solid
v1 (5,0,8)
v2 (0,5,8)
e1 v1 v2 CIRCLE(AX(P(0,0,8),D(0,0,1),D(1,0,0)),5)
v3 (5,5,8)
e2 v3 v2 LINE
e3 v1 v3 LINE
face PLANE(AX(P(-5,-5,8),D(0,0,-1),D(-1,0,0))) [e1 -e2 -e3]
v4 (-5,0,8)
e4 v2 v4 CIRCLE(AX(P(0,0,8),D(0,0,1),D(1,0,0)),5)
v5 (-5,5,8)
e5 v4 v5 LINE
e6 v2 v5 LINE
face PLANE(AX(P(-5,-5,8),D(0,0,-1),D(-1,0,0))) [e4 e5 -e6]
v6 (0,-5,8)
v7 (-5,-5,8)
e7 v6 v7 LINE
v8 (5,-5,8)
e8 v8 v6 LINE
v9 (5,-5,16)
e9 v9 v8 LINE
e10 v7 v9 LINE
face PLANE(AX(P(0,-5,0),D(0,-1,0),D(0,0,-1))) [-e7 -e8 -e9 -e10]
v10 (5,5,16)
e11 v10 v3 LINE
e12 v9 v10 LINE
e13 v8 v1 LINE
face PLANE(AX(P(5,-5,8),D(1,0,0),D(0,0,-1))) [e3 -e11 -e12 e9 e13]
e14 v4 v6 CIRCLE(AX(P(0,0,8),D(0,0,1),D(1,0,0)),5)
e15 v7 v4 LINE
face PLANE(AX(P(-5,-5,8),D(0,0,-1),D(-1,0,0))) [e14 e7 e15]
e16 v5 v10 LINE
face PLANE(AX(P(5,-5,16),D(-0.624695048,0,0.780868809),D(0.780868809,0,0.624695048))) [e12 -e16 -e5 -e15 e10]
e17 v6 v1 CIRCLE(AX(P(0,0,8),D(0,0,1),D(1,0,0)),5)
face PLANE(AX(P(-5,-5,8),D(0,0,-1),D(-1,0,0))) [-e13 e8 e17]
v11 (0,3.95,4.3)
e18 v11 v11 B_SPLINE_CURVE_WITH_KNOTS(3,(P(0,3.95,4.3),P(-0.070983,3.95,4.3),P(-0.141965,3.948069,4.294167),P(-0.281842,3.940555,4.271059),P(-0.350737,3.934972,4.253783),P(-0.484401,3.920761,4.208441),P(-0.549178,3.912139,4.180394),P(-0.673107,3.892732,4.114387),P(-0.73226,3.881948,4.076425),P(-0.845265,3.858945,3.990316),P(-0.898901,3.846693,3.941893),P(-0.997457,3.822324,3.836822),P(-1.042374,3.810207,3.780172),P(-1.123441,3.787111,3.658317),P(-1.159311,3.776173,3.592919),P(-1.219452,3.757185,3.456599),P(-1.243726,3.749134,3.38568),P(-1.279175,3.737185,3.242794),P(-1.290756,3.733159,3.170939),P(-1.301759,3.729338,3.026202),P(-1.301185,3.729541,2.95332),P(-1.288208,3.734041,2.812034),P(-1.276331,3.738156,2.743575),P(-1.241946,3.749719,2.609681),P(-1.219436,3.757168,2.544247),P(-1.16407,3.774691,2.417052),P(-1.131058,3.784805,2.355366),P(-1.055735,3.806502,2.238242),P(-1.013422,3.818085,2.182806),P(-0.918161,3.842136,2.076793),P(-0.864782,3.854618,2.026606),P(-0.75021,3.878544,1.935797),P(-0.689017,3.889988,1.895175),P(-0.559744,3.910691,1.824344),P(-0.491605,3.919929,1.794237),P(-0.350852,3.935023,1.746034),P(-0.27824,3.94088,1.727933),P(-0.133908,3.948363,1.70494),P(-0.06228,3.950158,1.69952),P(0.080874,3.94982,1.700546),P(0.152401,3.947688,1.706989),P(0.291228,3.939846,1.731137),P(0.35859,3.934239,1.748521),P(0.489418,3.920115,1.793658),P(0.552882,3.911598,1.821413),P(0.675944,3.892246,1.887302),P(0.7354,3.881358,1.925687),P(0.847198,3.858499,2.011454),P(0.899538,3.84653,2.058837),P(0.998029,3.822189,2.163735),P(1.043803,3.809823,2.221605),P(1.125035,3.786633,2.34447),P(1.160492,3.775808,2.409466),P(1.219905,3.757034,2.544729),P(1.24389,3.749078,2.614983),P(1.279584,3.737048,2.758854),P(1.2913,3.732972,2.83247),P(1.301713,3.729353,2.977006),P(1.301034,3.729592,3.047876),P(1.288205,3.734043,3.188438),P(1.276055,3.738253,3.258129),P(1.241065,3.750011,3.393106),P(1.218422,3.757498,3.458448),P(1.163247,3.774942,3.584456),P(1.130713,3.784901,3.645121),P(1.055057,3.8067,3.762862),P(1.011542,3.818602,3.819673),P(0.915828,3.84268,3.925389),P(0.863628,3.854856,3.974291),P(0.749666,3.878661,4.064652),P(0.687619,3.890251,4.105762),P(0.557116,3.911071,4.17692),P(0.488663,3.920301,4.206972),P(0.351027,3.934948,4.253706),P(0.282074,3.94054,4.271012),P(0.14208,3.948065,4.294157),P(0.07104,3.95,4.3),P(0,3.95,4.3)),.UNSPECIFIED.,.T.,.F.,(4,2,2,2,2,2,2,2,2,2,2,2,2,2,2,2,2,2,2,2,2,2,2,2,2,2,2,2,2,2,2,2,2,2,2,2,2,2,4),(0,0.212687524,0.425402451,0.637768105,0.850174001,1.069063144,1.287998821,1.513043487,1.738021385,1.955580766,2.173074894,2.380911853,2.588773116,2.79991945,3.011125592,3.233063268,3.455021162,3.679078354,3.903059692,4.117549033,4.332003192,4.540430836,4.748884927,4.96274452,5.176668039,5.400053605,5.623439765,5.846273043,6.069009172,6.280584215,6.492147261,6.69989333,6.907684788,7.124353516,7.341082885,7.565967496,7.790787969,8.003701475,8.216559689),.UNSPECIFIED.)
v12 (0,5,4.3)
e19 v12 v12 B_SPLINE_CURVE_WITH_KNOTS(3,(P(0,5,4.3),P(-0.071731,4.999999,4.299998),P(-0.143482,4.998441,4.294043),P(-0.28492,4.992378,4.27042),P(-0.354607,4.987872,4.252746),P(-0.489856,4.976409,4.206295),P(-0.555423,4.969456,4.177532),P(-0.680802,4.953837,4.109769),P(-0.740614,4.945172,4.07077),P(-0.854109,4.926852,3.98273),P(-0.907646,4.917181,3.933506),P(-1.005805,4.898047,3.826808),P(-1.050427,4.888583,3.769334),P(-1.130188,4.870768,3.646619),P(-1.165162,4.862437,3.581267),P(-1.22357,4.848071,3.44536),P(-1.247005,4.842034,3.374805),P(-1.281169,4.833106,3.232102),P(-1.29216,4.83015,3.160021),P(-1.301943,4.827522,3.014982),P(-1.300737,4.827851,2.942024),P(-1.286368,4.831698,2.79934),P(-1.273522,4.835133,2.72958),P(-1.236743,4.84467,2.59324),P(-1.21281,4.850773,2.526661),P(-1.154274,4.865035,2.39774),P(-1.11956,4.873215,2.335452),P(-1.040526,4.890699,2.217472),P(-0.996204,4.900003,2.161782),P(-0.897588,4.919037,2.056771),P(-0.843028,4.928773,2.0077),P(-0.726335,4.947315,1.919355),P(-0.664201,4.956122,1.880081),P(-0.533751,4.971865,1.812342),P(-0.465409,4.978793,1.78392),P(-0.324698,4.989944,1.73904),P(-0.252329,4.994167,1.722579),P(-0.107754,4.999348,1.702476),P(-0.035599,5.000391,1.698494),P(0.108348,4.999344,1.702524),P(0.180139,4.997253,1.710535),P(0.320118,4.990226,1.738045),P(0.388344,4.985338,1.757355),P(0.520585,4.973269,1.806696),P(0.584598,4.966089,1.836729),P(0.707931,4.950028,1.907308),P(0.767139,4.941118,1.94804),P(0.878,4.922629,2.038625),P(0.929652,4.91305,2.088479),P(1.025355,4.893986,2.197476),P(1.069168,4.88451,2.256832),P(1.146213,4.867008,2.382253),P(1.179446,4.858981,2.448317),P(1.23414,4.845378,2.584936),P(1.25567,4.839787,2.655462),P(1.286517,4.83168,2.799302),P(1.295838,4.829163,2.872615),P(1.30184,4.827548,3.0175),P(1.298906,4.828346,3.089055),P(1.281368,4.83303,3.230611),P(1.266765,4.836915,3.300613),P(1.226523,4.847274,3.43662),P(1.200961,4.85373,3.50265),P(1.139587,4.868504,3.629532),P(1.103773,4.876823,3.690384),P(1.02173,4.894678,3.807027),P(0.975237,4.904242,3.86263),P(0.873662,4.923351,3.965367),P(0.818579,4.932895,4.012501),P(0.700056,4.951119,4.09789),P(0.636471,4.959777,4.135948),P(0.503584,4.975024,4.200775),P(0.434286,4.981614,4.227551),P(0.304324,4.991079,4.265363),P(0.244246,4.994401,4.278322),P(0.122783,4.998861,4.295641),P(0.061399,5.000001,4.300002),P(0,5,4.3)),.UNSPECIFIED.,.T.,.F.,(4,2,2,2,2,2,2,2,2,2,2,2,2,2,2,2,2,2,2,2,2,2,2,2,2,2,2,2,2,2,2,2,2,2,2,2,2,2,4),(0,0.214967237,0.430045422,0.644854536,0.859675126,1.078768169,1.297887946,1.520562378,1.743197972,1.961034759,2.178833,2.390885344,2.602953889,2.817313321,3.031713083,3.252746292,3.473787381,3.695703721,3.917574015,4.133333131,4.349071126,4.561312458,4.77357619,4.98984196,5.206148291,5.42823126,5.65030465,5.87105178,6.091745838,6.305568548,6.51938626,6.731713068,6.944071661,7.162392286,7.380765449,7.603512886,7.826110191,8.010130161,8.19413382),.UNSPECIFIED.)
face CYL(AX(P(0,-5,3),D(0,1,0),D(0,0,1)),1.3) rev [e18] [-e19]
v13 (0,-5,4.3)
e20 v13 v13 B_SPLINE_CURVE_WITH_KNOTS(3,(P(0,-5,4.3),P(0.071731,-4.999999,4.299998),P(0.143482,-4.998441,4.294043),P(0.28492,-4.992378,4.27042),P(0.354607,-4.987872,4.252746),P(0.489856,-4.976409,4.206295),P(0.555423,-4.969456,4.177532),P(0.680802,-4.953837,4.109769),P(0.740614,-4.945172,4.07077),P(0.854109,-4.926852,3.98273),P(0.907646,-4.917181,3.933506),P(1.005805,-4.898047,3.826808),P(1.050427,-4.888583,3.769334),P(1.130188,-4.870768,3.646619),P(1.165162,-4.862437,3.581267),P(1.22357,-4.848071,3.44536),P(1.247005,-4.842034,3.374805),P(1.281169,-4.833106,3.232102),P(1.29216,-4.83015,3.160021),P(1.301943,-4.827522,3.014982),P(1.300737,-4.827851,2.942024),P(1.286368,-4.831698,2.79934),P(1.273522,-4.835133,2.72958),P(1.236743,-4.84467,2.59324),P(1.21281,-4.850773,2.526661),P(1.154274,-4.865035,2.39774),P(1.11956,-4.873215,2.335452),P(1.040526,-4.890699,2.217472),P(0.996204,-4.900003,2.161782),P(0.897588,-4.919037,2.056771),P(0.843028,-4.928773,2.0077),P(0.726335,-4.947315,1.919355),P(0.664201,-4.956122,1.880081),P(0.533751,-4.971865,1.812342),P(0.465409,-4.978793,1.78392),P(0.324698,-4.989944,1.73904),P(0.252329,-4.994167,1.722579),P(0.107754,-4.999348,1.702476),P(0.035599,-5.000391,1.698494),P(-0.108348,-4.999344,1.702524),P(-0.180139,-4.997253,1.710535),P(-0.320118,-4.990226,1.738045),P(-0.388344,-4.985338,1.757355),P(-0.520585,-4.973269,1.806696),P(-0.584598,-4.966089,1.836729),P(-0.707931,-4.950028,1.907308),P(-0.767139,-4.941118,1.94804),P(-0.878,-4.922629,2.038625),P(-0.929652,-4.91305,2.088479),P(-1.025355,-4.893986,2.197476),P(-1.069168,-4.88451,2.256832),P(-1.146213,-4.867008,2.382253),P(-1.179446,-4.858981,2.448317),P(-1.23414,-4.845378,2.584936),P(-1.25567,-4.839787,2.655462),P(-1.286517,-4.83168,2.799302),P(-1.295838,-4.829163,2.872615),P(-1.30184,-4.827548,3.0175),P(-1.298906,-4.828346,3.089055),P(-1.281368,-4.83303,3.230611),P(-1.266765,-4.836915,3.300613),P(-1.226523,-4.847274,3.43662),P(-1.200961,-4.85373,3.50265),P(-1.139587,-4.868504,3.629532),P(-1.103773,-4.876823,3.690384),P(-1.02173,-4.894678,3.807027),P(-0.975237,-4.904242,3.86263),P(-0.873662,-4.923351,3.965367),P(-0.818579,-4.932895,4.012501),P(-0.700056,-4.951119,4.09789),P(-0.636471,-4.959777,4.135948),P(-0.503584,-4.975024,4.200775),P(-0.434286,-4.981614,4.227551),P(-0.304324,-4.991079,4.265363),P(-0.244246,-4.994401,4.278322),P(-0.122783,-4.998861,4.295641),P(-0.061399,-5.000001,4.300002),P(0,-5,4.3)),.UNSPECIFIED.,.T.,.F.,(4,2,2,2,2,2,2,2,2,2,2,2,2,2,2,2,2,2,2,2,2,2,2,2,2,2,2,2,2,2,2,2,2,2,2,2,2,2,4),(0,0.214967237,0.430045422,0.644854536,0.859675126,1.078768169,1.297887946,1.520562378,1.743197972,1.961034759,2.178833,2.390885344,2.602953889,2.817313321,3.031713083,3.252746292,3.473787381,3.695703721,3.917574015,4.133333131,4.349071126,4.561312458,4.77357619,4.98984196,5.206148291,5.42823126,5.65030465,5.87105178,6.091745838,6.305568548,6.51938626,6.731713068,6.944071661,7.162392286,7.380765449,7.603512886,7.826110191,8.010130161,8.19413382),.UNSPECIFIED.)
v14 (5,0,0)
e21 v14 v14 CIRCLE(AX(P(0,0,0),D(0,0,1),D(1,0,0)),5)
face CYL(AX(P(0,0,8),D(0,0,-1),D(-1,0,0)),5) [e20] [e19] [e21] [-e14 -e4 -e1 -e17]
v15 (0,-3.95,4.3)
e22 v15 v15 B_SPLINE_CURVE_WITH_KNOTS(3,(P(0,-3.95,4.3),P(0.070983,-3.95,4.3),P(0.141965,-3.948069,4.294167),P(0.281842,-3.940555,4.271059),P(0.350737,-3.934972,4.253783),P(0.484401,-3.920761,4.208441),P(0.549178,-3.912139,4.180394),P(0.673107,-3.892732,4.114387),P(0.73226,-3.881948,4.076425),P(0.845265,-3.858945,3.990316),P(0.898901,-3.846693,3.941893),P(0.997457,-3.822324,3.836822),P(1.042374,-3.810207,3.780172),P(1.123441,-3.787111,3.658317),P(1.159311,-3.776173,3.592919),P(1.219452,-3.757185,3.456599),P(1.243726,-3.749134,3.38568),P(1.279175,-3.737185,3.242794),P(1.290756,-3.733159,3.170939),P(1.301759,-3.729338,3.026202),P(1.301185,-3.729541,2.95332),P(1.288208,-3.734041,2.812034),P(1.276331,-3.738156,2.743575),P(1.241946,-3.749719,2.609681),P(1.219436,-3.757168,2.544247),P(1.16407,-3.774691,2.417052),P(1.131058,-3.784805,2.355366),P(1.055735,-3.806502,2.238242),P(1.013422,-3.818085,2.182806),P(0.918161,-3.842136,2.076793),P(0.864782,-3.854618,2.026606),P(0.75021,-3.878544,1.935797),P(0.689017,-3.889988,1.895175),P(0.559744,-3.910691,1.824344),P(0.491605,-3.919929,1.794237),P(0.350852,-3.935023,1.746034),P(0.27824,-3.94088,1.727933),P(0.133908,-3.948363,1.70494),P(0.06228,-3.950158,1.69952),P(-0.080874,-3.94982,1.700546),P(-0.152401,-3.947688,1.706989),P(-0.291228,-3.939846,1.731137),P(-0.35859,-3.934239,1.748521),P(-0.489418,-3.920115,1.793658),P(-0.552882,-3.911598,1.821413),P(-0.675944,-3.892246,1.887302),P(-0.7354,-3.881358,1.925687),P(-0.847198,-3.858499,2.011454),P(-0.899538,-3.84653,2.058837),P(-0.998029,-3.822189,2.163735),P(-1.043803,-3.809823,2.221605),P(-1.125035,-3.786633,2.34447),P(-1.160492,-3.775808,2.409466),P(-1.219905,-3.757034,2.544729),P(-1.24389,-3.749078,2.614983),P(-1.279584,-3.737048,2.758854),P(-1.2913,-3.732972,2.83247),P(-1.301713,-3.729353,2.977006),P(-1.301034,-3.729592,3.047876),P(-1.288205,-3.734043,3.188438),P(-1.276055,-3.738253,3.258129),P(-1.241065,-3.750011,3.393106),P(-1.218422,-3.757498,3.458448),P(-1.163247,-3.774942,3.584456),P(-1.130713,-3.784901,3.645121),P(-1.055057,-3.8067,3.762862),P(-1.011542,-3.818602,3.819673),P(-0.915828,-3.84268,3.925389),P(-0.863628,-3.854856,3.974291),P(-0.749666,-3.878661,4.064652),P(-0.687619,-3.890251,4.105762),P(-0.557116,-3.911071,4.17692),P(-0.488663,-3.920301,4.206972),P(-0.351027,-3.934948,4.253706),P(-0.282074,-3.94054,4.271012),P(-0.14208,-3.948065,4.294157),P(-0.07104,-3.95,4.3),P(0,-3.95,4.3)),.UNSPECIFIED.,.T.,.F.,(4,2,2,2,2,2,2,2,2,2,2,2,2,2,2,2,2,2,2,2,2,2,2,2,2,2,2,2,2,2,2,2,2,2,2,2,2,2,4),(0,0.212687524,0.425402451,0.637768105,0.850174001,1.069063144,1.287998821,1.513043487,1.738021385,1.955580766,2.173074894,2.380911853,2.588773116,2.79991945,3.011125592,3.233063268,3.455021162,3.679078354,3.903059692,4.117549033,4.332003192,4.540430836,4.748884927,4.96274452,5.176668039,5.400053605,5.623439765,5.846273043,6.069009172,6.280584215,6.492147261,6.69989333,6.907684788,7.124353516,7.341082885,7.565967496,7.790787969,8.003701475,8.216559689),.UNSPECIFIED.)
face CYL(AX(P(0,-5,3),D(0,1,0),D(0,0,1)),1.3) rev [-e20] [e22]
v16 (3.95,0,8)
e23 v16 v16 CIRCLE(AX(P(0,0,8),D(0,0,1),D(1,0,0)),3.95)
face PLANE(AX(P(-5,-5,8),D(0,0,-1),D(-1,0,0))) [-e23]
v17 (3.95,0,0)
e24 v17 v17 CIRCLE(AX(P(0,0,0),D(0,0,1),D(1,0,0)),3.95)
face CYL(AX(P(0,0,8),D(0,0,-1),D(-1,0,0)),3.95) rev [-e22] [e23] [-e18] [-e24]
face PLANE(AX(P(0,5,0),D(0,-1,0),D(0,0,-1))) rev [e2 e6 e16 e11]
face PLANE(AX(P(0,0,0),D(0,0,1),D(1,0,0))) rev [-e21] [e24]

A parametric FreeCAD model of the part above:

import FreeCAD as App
import Part
import Sketcher
Q = App.Units.Quantity

doc = App.newDocument("Part")
body = doc.addObject("PartDesign::Body", "Body")

# Sketch on XY plane
sketch1 = body.newObject("Sketcher::SketchObject", "Sketch")
sketch1.AttachmentSupport = (doc.getObject("XY_Plane"), [""])
sketch1.MapMode = "FlatFace"
sketch1.addGeometry(Part.Circle(App.Vector(0, 0, 0), App.Vector(0, 0, 1), 5), False)
sketch1.addGeometry(Part.Circle(App.Vector(0, 0, 0), App.Vector(0, 0, 1), 4), False)
sketch1.addConstraint(Sketcher.Constraint("Coincident", 0, 3, -1, 1))
sketch1.addConstraint(Sketcher.Constraint("Coincident", 1, 3, -1, 1))
sketch1.addConstraint(Sketcher.Constraint("Diameter", 0, Q("10 mm")))
sketch1.addConstraint(Sketcher.Constraint("Diameter", 1, Q("7.9 mm")))
pad1 = body.newObject("PartDesign::Pad", "Pad")
pad1.Profile = sketch1
pad1.Length = 8

# Sketch on XZ plane
sketch2 = body.newObject("Sketcher::SketchObject", "Sketch001")
sketch2.AttachmentSupport = (doc.getObject("XZ_Plane"), [""])
sketch2.MapMode = "FlatFace"
sketch2.addGeometry(Part.LineSegment(App.Vector(-5, 8, 0), App.Vector(5, 16, 0)), False)
sketch2.addGeometry(Part.LineSegment(App.Vector(5, 16, 0), App.Vector(5, 8, 0)), False)
sketch2.addGeometry(Part.LineSegment(App.Vector(5, 8, 0), App.Vector(-5, 8, 0)), False)
sketch2.addConstraint(Sketcher.Constraint("Coincident", 0, 2, 1, 1))
sketch2.addConstraint(Sketcher.Constraint("Coincident", 1, 2, 2, 1))
sketch2.addConstraint(Sketcher.Constraint("Coincident", 2, 2, 0, 1))
sketch2.addConstraint(Sketcher.Constraint("Vertical", 1))
sketch2.addConstraint(Sketcher.Constraint("Horizontal", 2))
sketch2.addConstraint(Sketcher.Constraint("DistanceX", 2, 2, 2, 1, Q("10 mm")))
sketch2.addConstraint(Sketcher.Constraint("DistanceY", 1, 2, 1, 1, Q("8 mm")))
sketch2.addConstraint(Sketcher.Constraint("DistanceX", -1, 1, 0, 2, Q("5 mm")))
sketch2.addConstraint(Sketcher.Constraint("DistanceY", -1, 1, 0, 2, Q("16 mm")))
pad2 = body.newObject("PartDesign::Pad", "Pad001")
pad2.Profile = sketch2
pad2.Type = "TwoLengths"
pad2.Length = 5
pad2.Length2 = 5
pad2.Reversed = True

# Sketch on XZ plane
sketch3 = body.newObject("Sketcher::SketchObject", "Sketch002")
sketch3.AttachmentSupport = (doc.getObject("XZ_Plane"), [""])
sketch3.MapMode = "FlatFace"
sketch3.addGeometry(Part.Circle(App.Vector(0, 3, 0), App.Vector(0, 0, 1), 1.3), False)
sketch3.addConstraint(Sketcher.Constraint("PointOnObject", 0, 3, -2))
sketch3.addConstraint(Sketcher.Constraint("Diameter", 0, Q("2.6 mm")))
sketch3.addConstraint(Sketcher.Constraint("DistanceY", -1, 1, 0, 3, Q("3 mm")))
pocket1 = body.newObject("PartDesign::Pocket", "Pocket")
pocket1.Profile = sketch3
pocket1.Type = "ThroughAll"
pocket1.Midplane = True

doc.recompute()
